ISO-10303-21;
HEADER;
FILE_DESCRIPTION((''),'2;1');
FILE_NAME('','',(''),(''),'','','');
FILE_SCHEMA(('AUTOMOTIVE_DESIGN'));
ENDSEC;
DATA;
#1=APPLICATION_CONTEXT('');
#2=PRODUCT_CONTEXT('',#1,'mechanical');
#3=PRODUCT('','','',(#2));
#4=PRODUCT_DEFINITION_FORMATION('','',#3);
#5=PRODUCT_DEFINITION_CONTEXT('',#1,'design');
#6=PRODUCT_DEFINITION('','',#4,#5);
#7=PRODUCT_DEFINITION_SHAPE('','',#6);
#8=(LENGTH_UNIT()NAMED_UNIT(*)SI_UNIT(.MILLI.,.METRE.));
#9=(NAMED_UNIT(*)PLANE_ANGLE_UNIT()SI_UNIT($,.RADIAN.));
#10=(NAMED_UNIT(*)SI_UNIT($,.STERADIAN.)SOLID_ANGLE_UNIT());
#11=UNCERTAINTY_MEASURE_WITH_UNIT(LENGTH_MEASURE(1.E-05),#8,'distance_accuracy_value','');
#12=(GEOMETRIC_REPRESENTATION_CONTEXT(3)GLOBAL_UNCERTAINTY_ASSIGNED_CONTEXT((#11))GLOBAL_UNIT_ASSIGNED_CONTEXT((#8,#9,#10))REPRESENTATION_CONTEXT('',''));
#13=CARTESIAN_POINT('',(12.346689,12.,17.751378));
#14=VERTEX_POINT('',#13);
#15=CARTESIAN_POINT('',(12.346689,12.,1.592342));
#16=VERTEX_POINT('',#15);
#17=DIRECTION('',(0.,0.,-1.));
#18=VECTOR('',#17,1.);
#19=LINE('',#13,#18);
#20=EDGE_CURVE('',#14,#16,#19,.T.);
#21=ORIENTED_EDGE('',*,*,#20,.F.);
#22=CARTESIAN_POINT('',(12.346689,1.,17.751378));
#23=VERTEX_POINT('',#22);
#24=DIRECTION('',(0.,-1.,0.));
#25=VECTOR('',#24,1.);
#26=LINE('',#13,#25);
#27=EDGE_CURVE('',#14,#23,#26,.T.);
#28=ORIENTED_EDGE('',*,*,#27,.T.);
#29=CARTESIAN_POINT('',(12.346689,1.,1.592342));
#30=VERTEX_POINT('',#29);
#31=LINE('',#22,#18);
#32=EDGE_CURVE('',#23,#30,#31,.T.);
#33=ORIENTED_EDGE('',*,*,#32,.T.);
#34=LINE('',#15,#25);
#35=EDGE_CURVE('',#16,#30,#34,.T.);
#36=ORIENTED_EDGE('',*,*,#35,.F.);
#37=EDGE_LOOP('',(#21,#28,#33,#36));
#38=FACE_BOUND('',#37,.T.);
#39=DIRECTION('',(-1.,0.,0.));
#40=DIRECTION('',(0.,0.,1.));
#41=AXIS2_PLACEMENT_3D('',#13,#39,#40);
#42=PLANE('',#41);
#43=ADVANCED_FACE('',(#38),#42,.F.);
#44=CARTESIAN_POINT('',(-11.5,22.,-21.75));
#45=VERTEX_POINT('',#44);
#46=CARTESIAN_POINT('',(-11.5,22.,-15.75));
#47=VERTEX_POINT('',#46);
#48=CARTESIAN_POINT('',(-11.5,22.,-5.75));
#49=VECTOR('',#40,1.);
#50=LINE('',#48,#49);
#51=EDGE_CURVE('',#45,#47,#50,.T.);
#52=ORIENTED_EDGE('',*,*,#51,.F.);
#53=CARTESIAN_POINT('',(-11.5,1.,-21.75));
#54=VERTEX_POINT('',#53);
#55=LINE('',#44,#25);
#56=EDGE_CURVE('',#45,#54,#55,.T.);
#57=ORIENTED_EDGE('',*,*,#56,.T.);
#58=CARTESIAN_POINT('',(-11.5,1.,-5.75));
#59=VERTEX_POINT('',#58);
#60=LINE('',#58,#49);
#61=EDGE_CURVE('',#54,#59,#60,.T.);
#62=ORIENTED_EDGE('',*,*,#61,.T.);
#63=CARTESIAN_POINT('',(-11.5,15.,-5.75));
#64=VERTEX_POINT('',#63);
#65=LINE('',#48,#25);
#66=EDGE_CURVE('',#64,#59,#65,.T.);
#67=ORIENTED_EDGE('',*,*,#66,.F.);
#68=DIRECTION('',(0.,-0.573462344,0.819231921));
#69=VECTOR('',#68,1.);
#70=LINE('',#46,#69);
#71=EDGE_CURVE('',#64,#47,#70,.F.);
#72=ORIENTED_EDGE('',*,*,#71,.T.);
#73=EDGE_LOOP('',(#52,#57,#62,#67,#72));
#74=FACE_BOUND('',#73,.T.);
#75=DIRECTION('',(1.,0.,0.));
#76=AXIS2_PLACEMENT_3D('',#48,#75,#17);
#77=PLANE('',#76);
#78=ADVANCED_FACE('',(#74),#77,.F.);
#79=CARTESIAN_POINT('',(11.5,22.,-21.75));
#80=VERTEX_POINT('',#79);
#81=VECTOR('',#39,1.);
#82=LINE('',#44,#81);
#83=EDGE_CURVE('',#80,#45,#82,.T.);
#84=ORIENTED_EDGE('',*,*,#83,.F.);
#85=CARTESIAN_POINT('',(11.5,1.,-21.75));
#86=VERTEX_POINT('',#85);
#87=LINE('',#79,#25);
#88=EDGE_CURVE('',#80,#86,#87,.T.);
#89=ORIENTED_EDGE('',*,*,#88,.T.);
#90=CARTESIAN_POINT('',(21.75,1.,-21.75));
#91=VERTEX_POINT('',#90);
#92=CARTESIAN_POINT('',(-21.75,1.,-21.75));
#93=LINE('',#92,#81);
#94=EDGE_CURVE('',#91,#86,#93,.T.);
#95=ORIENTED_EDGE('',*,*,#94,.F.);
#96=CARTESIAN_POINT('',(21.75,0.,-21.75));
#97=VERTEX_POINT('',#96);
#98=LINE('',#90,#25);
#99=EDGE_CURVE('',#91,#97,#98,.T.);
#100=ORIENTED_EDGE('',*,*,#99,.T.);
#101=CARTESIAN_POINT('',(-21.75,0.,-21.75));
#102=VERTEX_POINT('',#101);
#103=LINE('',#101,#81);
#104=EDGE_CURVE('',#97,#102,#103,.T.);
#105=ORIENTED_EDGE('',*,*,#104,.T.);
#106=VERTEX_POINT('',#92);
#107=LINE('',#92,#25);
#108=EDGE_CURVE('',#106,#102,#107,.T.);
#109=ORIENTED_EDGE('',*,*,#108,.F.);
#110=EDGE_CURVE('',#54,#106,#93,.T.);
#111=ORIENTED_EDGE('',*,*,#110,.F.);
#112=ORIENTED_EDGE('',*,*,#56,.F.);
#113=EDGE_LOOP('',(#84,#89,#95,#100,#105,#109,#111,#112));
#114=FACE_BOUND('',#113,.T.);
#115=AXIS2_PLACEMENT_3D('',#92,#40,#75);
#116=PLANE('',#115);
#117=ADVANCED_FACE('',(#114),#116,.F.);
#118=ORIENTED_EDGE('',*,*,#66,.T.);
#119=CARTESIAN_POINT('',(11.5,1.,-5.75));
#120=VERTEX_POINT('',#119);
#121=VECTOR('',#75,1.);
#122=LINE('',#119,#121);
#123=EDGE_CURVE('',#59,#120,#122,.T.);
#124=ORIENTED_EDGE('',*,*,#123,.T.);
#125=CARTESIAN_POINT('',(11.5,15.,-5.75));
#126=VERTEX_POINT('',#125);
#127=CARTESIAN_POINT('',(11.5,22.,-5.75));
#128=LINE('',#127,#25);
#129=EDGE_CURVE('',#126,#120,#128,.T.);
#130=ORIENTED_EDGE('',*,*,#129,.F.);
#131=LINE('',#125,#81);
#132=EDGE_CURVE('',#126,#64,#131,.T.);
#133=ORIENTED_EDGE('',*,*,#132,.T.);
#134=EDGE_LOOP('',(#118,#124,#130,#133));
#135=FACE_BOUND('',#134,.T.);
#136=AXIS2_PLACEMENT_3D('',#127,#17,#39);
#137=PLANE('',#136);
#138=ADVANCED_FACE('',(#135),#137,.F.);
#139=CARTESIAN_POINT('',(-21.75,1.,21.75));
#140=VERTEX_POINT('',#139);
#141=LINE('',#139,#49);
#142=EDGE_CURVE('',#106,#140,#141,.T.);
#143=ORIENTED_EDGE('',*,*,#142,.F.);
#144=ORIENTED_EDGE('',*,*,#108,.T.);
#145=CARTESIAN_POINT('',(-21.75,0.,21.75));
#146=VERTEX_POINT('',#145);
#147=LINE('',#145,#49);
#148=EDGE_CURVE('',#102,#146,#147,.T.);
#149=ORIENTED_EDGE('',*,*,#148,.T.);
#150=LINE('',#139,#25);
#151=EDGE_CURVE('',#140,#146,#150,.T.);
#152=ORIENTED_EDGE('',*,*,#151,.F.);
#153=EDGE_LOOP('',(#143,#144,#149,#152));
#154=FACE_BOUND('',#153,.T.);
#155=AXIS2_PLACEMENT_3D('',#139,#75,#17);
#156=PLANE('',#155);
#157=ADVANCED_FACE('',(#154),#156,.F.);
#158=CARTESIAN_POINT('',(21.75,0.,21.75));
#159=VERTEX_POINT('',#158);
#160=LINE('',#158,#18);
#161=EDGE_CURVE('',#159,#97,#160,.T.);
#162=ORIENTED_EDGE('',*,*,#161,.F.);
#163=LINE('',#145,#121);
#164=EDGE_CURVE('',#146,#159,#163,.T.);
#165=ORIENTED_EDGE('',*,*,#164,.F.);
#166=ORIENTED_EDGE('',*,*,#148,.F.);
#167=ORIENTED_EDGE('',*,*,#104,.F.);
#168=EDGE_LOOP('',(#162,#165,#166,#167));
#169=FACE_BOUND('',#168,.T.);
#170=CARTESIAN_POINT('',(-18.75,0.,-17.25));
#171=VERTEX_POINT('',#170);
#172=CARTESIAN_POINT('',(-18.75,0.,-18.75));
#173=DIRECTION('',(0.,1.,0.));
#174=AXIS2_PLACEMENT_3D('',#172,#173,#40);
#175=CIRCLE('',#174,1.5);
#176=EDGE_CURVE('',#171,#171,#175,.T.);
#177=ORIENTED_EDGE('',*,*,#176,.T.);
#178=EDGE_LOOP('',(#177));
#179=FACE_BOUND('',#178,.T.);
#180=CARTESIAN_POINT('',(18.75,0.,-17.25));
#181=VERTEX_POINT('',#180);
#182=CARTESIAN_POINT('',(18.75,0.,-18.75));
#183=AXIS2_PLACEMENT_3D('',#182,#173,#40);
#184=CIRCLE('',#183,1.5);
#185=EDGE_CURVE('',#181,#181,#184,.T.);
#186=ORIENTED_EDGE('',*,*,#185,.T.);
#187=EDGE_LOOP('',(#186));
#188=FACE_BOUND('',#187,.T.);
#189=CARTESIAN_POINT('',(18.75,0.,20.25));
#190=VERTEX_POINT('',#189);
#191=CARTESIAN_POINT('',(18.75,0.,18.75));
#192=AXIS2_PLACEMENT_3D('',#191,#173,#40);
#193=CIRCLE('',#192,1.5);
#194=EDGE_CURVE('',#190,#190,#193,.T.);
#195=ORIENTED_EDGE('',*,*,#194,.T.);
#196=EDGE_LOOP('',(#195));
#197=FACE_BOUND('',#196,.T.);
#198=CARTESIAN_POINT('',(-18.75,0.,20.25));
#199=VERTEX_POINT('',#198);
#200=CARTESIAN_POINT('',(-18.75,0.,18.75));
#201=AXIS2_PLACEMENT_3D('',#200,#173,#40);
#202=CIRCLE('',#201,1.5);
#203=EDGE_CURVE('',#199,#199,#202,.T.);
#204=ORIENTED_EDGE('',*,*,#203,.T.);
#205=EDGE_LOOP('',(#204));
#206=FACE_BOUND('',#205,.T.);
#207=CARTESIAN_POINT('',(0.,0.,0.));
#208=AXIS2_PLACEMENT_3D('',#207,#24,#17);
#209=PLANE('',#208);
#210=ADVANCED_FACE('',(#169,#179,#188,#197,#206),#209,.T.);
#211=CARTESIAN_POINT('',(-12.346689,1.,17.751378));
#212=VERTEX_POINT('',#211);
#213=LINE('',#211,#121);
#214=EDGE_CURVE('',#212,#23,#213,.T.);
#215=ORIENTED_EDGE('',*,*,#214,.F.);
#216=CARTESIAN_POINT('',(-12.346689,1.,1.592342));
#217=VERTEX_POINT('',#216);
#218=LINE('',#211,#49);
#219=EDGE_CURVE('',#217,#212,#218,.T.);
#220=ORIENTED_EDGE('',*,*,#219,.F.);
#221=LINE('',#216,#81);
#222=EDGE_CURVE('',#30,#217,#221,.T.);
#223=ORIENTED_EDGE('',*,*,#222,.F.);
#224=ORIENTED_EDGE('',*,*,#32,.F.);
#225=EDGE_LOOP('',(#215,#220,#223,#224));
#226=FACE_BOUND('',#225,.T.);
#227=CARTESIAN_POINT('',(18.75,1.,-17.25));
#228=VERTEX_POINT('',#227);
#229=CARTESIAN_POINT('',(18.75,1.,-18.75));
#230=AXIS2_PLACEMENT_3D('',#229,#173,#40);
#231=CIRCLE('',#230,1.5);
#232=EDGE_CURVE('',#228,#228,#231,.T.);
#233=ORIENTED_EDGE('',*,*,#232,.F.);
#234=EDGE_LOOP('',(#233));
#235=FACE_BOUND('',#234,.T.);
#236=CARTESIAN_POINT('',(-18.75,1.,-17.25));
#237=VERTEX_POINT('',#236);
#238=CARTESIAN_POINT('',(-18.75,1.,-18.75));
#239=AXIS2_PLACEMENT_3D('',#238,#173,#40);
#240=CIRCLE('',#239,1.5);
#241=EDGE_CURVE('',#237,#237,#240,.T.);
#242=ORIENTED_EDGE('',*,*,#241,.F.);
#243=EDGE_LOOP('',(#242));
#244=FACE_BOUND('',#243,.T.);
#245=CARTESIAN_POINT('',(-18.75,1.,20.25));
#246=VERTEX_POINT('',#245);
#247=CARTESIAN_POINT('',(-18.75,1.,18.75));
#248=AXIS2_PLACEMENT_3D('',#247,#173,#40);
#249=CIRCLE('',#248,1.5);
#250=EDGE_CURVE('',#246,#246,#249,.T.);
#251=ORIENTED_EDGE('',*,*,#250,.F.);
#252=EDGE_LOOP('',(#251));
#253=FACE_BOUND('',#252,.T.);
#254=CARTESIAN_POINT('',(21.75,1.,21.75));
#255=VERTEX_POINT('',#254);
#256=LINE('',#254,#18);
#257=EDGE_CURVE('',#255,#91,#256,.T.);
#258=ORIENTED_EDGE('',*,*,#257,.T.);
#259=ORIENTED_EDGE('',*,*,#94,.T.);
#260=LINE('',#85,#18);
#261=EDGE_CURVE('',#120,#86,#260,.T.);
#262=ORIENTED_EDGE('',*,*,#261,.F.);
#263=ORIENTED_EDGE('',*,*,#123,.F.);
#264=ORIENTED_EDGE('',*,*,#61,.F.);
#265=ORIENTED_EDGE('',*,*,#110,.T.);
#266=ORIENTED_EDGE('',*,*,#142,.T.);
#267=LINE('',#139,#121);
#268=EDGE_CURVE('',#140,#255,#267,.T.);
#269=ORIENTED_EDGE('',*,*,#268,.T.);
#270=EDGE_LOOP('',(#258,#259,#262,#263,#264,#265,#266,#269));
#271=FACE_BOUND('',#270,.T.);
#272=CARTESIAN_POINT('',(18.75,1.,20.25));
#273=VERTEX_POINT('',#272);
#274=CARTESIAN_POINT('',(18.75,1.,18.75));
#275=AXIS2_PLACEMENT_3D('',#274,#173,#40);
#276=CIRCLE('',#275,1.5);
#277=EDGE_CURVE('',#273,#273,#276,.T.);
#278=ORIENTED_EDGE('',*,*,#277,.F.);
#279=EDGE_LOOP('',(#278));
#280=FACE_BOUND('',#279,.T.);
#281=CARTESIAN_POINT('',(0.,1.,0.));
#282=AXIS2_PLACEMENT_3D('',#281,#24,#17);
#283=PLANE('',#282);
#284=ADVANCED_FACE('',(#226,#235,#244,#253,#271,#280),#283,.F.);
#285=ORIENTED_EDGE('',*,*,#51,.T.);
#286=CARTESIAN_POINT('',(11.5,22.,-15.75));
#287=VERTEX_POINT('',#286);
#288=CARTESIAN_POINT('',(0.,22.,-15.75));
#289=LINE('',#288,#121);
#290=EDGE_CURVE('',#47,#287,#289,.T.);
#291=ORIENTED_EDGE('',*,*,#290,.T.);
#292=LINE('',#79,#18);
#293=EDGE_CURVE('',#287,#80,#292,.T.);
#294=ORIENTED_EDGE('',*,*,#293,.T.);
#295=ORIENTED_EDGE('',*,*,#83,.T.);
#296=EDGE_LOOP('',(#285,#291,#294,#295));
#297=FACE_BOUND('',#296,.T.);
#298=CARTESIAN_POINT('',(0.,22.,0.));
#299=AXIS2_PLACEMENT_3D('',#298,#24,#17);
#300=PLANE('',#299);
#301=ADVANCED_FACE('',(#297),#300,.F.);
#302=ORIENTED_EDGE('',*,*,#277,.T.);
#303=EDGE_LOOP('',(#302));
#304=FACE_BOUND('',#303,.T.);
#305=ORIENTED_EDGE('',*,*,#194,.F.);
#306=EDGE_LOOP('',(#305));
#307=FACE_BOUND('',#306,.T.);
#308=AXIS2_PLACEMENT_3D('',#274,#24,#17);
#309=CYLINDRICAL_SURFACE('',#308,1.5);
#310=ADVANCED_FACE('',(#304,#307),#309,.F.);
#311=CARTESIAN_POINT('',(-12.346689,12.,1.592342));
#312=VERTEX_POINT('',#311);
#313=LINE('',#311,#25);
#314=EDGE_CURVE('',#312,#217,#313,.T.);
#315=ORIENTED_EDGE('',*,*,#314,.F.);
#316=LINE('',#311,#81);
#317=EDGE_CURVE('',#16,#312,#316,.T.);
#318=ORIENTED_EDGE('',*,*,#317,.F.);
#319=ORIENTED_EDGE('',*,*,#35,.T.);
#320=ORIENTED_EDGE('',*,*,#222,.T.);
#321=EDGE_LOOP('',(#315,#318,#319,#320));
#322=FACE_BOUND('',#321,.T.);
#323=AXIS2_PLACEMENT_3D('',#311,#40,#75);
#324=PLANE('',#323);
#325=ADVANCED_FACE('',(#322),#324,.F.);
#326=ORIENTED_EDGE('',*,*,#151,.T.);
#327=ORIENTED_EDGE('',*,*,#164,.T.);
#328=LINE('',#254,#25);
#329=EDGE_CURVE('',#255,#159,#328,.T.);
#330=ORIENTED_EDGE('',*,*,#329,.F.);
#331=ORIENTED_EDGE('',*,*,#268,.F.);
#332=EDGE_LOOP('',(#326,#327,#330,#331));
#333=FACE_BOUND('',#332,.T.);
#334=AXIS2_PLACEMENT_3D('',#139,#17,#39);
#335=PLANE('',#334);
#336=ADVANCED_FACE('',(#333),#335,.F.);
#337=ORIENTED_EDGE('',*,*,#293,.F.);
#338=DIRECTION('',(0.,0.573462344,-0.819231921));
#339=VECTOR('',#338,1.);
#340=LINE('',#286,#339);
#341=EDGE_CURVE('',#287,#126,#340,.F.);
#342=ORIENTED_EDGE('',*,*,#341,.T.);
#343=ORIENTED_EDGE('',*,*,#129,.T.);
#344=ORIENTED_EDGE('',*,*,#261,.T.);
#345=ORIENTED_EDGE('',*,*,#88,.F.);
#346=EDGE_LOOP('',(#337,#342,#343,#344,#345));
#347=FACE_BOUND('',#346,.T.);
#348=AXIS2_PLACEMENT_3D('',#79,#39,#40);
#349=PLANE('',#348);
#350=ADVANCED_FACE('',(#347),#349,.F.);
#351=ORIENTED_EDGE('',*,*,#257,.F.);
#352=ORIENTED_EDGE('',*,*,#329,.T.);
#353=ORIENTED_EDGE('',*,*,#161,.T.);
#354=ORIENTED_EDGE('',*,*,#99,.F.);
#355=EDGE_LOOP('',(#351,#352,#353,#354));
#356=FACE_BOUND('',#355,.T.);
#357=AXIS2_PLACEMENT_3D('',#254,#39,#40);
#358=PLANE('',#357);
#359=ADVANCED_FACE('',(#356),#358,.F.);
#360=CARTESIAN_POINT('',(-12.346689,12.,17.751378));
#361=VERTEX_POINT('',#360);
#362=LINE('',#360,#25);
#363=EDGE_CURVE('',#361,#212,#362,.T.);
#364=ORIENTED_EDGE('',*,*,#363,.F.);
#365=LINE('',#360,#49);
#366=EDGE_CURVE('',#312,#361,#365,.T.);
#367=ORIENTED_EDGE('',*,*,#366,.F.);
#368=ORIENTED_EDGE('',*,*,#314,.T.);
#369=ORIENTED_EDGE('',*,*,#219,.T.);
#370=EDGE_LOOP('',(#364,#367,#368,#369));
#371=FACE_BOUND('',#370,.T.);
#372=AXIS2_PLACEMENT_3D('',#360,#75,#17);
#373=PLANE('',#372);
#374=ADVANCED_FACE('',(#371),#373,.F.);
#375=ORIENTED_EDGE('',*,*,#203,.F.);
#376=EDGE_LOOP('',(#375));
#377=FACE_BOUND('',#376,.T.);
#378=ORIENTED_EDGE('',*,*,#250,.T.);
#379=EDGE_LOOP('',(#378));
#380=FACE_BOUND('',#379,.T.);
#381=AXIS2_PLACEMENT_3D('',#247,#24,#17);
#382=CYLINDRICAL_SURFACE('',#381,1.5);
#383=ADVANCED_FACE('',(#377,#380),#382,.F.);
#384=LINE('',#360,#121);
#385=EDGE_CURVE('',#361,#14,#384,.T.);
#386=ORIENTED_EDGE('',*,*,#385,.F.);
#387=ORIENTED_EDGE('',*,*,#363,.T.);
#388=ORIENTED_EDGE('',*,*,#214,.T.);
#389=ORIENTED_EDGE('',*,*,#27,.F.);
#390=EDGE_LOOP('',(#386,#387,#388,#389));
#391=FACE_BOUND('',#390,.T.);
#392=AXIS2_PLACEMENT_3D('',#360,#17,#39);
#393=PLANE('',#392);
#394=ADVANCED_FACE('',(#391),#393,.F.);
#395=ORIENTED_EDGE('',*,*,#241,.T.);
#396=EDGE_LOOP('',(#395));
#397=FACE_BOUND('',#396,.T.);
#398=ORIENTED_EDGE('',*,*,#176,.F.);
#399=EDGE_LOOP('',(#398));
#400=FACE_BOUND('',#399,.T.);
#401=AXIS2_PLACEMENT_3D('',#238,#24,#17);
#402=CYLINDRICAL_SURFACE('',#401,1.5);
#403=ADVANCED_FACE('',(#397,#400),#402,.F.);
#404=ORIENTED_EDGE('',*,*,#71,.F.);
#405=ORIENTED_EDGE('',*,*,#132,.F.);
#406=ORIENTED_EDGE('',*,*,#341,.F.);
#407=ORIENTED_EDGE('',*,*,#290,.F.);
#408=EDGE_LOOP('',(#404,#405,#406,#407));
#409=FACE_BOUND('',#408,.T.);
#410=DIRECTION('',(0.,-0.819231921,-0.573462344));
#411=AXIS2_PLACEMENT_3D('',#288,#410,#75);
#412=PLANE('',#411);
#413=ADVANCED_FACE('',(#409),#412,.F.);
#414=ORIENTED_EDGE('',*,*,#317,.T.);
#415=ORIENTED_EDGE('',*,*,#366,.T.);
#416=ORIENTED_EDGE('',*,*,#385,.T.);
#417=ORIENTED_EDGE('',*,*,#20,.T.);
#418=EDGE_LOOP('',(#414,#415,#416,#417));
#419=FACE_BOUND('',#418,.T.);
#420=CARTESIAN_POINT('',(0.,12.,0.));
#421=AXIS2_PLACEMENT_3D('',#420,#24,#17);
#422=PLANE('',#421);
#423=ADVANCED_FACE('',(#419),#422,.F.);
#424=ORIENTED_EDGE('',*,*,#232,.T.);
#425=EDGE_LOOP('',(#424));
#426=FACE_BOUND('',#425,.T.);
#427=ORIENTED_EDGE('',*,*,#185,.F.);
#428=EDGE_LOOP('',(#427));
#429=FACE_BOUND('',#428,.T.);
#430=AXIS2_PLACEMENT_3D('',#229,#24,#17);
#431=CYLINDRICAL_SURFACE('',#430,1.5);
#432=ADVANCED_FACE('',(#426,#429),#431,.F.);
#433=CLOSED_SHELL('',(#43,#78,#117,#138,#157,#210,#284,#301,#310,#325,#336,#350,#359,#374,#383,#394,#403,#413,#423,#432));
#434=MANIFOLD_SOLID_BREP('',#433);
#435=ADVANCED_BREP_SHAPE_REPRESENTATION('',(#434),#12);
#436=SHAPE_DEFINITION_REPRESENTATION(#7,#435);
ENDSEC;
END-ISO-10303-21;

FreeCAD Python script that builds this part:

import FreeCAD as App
import Part
import Sketcher


def edges_at(feature, points):
    """Names of the edges that pass closest to the given points."""
    edges = feature.Shape.Edges
    near = lambda p: min(range(len(edges)), key=lambda i: edges[i].distToShape(Part.Vertex(*p))[0])
    return sorted({f"Edge{near(p) + 1}" for p in points})


def add_polygon(sketch, points):
    """Adds a closed chain of lines whose ends are joined by coincident constraints."""
    first, n = sketch.GeometryCount, len(points)
    for a, b in zip(points, points[1:] + points[:1]):
        sketch.addGeometry(Part.LineSegment(App.Vector(*a, 0), App.Vector(*b, 0)), False)
    for i in range(n):
        sketch.addConstraint(Sketcher.Constraint("Coincident", first + i, 2, first + (i + 1) % n, 1))

doc = App.newDocument("Part")
body = doc.addObject("PartDesign::Body", "Body")

# Sketch on XZ plane
sketch1 = body.newObject("Sketcher::SketchObject", "Sketch")
sketch1.AttachmentSupport = (doc.getObject("XZ_Plane"), [""])
sketch1.MapMode = "FlatFace"
add_polygon(sketch1, [(-21.8, -21.8), (-21.8, 21.8), (21.8, 21.8), (21.8, -21.8)])  # lines 0-3
sketch1.addGeometry(Part.Circle(App.Vector(-18.8, 18.8, 0), App.Vector(0, 0, 1), 1.5), False)  # 4
sketch1.addGeometry(Part.Circle(App.Vector(18.8, 18.8, 0), App.Vector(0, 0, 1), 1.5), False)  # 5
sketch1.addGeometry(Part.Circle(App.Vector(-18.8, -18.8, 0), App.Vector(0, 0, 1), 1.5), False)  # 6
sketch1.addGeometry(Part.Circle(App.Vector(18.8, -18.8, 0), App.Vector(0, 0, 1), 1.5), False)  # 7
sketch1.addConstraint([
    Sketcher.Constraint("Vertical", 0),
    Sketcher.Constraint("Horizontal", 1),
    Sketcher.Constraint("Vertical", 2),
    Sketcher.Constraint("Horizontal", 3),
    Sketcher.Constraint("Equal", 4, 5),
    Sketcher.Constraint("Equal", 5, 6),
    Sketcher.Constraint("Equal", 6, 7),
    Sketcher.Constraint("Symmetric", 5, 3, 6, 3, -1, 1),
    Sketcher.Constraint("Symmetric", 4, 3, 7, 3, -1, 1),
    Sketcher.Constraint("Symmetric", 0, 2, 2, 2, -1, 1),
    Sketcher.Constraint("Symmetric", 4, 3, 5, 3, -2),
    Sketcher.Constraint("Equal", 3, 0),
    Sketcher.Constraint("Diameter", 4, 3.0),
    Sketcher.Constraint("DistanceX", 1, 1, 1, 2, 43.5),
    Sketcher.Constraint("DistanceX", 0, 2, 4, 3, 3.0),
    Sketcher.Constraint("DistanceY", 4, 3, 0, 2, 3.0),
])
pad1 = body.newObject("PartDesign::Pad", "Pad")
pad1.Profile = sketch1
pad1.Length = 1
pad1.Reversed = True

# Sketch on XZ plane
sketch2 = body.newObject("Sketcher::SketchObject", "Sketch001")
sketch2.AttachmentSupport = (doc.getObject("XZ_Plane"), [""])
sketch2.MapMode = "FlatFace"
sketch2.AttachmentOffset = App.Placement(App.Vector(0, 0, -1), App.Rotation())
add_polygon(sketch2, [(-12, -22), (-12, -6), (12, -6), (12, -22)])  # lines 0-3
sketch2.addConstraint([
    Sketcher.Constraint("Vertical", 0),
    Sketcher.Constraint("Horizontal", 1),
    Sketcher.Constraint("Vertical", 2),
    Sketcher.Constraint("Horizontal", 3),
    Sketcher.Constraint("DistanceX", 1, 1, 1, 2, 23.0),
    Sketcher.Constraint("DistanceY", 0, 1, 0, 2, 16.0),
    Sketcher.Constraint("DistanceX", 0, 2, -1, 1, 11.5),
    Sketcher.Constraint("DistanceY", 0, 2, -1, 1, 5.75),
])
pad2 = body.newObject("PartDesign::Pad", "Pad001")
pad2.Profile = sketch2
pad2.Length = 21
pad2.Reversed = True

# Sketch on XZ plane
sketch3 = body.newObject("Sketcher::SketchObject", "Sketch002")
sketch3.AttachmentSupport = (doc.getObject("XZ_Plane"), [""])
sketch3.MapMode = "FlatFace"
sketch3.AttachmentOffset = App.Placement(App.Vector(0, 0, -1), App.Rotation())
add_polygon(sketch3, [(-12, 2), (-12, 18), (12, 18), (12, 2)])  # lines 0-3
sketch3.addConstraint([
    Sketcher.Constraint("Vertical", 0),
    Sketcher.Constraint("Horizontal", 1),
    Sketcher.Constraint("Vertical", 2),
    Sketcher.Constraint("Horizontal", 3),
    Sketcher.Constraint("DistanceX", 1, 1, 1, 2, 24.693379),
    Sketcher.Constraint("DistanceY", 0, 1, 0, 2, 16.159036),
    Sketcher.Constraint("DistanceX", 0, 2, -1, 1, 12.346689),
    Sketcher.Constraint("DistanceY", -1, 1, 0, 2, 17.751378),
])
pad3 = body.newObject("PartDesign::Pad", "Pad002")
pad3.Profile = sketch3
pad3.Length = 11
pad3.Reversed = True
doc.recompute()

chamfer = body.newObject("PartDesign::Chamfer", "Chamfer")
chamfer.Base = (pad3, edges_at(pad3, [(0, 22, -5.75)]))
chamfer.ChamferType = "Two distances"
chamfer.Size = 7
chamfer.Size2 = 10
chamfer.FlipDirection = True

doc.recompute()
